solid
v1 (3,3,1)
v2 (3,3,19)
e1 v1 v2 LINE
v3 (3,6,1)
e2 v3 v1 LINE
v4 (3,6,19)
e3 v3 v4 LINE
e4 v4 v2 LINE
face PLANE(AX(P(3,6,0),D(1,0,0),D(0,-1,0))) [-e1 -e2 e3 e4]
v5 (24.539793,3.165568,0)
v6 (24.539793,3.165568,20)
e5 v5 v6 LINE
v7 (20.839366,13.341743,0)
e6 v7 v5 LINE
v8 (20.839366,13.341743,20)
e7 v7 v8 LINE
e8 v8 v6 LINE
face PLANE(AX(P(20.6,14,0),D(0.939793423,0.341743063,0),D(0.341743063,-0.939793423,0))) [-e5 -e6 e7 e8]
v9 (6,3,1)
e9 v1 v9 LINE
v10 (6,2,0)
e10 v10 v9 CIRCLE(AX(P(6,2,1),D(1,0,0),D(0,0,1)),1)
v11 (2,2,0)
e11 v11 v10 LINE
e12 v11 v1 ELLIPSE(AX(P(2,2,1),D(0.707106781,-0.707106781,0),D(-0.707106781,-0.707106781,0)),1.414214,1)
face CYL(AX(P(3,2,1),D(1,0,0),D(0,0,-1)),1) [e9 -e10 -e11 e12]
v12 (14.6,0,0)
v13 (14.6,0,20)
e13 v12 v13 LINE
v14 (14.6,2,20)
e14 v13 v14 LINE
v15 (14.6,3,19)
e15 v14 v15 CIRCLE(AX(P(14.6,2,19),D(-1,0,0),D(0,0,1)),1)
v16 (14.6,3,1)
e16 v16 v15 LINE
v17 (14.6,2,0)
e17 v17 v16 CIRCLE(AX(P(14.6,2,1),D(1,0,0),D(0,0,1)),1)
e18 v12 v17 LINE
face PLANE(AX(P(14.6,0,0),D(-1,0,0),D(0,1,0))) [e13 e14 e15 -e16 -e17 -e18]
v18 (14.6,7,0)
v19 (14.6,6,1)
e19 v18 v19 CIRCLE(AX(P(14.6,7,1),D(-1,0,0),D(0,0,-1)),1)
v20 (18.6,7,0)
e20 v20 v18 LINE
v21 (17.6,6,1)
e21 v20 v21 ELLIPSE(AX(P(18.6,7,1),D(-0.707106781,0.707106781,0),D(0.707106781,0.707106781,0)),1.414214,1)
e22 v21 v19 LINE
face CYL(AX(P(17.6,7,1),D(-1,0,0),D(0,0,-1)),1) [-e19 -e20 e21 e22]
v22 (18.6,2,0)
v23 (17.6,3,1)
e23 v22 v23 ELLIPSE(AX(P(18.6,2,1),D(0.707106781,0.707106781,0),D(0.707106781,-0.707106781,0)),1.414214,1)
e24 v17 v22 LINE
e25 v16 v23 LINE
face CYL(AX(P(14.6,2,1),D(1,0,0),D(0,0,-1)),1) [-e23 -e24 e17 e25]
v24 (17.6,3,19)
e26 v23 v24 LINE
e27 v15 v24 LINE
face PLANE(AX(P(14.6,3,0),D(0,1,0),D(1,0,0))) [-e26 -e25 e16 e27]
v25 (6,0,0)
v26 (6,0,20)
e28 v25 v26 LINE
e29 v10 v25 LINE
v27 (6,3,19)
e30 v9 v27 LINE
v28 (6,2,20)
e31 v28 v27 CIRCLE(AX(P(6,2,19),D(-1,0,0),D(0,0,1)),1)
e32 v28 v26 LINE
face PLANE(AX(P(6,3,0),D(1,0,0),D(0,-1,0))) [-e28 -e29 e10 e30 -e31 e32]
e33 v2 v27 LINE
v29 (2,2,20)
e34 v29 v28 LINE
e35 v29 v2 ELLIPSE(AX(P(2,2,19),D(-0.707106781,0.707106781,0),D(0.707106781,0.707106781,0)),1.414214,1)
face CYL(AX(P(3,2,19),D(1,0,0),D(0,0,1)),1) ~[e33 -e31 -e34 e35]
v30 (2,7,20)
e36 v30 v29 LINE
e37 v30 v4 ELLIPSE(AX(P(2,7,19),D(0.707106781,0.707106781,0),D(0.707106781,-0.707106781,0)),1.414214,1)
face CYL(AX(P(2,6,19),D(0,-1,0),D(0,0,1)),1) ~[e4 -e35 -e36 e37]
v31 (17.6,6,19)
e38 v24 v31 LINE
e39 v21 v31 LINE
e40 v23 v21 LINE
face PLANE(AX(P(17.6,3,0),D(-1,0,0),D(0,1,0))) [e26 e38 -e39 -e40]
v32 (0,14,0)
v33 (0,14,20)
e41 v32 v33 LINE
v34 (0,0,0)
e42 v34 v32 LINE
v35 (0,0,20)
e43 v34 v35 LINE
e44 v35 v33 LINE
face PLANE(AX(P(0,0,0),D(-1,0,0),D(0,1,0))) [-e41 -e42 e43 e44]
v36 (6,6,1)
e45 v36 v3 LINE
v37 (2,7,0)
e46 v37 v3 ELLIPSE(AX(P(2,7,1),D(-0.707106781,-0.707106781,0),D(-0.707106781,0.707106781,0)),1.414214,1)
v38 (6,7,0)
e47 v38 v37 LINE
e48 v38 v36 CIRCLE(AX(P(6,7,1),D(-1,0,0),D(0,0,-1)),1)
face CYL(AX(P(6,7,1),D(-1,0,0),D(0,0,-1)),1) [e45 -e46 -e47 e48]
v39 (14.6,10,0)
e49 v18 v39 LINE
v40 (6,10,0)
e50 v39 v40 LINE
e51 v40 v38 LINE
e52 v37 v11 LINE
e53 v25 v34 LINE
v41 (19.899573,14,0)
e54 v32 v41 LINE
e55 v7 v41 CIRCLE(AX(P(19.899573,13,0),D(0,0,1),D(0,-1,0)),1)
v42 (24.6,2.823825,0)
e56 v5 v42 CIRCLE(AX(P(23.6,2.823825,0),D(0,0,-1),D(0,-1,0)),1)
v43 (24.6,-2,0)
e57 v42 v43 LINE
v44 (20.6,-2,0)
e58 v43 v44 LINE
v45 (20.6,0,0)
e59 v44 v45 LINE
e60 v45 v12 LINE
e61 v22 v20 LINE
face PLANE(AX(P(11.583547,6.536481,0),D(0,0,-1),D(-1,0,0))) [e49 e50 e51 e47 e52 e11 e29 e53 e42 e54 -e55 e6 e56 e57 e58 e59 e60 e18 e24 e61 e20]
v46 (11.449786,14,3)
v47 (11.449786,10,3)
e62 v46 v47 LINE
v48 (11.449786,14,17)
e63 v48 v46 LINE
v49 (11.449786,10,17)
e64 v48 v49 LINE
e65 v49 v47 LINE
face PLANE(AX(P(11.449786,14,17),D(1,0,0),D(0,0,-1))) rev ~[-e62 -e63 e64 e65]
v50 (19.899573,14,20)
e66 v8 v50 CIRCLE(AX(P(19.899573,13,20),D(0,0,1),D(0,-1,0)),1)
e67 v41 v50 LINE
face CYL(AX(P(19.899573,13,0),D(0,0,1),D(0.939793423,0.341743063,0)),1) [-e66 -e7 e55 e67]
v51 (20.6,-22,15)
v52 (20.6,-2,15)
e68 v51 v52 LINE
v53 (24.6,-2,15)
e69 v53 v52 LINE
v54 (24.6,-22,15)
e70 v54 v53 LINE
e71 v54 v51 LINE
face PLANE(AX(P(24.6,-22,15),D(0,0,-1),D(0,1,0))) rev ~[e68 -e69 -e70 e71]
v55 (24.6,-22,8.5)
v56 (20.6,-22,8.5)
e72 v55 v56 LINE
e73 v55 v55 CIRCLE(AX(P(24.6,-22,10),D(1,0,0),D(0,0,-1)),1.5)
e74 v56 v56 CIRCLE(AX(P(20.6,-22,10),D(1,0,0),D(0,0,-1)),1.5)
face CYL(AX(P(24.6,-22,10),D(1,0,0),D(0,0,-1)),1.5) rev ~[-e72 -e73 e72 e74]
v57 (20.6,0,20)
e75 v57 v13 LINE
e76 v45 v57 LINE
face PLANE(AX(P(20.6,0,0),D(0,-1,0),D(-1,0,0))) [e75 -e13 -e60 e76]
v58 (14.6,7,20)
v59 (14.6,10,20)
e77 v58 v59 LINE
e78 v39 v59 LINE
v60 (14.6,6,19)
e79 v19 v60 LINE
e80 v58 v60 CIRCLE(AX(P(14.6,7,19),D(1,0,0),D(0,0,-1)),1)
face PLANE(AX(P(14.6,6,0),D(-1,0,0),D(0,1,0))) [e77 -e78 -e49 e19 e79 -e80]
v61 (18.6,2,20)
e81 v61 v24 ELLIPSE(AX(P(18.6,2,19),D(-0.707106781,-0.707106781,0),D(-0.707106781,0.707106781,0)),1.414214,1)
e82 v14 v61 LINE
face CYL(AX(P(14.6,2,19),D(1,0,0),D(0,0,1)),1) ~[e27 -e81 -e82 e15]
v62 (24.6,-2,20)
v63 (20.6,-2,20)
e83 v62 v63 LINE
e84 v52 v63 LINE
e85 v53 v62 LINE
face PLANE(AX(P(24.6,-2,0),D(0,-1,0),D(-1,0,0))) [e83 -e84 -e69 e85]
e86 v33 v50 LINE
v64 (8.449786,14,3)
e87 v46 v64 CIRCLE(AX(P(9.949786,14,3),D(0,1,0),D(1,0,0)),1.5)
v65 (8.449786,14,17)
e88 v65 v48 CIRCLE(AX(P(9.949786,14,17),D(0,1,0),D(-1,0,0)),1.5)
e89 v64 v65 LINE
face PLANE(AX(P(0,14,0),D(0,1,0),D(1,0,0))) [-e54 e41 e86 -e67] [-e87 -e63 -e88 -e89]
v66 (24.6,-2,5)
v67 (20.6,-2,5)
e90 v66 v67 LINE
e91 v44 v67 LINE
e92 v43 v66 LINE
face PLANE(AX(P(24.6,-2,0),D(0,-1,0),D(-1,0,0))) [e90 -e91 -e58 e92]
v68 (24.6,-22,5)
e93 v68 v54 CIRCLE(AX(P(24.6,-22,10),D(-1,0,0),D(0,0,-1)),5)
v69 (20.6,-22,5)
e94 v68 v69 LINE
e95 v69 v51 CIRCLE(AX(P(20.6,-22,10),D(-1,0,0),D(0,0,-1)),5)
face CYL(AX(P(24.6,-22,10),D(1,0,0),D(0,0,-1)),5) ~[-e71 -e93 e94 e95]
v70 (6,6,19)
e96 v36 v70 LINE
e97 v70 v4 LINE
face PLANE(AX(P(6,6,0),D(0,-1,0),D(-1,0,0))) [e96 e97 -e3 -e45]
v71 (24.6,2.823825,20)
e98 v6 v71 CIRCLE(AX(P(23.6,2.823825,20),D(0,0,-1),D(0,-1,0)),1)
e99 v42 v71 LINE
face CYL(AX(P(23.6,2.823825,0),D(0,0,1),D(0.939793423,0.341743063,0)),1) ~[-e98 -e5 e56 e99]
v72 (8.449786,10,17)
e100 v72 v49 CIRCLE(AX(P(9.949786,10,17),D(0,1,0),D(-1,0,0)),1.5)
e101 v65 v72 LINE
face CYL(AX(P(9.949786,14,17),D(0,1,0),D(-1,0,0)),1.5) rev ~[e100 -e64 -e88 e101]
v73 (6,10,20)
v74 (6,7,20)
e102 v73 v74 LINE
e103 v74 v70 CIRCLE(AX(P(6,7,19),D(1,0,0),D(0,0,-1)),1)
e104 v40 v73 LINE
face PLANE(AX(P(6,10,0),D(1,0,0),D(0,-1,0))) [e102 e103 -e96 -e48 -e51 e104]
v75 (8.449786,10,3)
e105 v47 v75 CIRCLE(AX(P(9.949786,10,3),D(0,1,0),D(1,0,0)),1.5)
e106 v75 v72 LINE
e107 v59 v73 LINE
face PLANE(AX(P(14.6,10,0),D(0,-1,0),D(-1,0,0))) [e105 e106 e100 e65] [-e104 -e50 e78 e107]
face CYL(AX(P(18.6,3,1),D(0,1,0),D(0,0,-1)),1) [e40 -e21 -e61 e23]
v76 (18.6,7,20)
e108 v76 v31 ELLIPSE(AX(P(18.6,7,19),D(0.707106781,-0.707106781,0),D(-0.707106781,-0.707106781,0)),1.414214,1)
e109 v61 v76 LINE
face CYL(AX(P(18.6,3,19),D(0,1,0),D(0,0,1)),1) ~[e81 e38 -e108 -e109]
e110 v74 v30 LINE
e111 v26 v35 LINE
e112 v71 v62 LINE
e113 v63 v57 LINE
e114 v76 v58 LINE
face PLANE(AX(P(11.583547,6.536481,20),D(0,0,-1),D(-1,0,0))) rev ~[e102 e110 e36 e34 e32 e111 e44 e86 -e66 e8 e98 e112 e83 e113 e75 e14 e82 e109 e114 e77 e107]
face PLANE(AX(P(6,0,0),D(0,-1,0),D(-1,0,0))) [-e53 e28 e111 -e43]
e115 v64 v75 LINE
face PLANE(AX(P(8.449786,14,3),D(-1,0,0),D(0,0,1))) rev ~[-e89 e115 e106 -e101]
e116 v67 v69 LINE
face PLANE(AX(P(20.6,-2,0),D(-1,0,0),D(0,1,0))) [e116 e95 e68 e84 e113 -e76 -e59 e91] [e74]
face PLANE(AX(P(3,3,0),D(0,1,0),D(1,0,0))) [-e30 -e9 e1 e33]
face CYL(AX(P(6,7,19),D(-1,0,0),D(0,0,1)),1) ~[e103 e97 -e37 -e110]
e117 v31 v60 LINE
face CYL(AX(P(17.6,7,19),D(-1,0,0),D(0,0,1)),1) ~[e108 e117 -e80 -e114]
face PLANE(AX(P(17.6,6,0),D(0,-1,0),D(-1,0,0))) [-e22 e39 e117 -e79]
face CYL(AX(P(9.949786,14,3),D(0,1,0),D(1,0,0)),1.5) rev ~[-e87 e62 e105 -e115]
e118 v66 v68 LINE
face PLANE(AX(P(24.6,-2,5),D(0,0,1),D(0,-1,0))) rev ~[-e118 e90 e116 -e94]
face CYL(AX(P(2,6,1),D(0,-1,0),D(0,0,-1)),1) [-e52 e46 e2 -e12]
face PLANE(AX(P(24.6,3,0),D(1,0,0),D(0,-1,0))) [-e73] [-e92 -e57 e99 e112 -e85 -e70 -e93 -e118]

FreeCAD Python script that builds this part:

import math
import FreeCAD as App
import Part
import Sketcher


def edges_at(feature, points):
    """Names of the edges that pass closest to the given points."""
    edges = feature.Shape.Edges
    near = lambda p: min(range(len(edges)), key=lambda i: edges[i].distToShape(Part.Vertex(*p))[0])
    return sorted({f"Edge{near(p) + 1}" for p in points})

doc = App.newDocument("Part")
params = doc.addObject("Spreadsheet::Sheet", "Params")
for row, (alias, value) in enumerate([
    ("sketch1_width", "6 mm"),
    ("sketch1_width2", "3 mm"),
    ("sketch1_width3", "4 mm"),
    ("sketch1_height", "14 mm"),
    ("sketch1_height2", "2 mm"),
    ("pad1_length", "20 mm"),
    ("sketch2_diameter", "3 mm"),
    ("sketch2_radius", "5 mm"),
    ("sketch2_width", "20 mm"),
    ("pad2_length", "4 mm"),
    ("fillet_radius", "1 mm"),
    ("sketch3_radius", "1.5 mm"),
    ("sketch3_height", "14 mm"),
], start=1):
    params.set(f"A{row}", alias)
    params.set(f"B{row}", "=" + value)
    params.setAlias(f"B{row}", alias)

body = doc.addObject("PartDesign::Body", "Body")

# Sketch on XY plane
sketch1 = doc.addObject("Sketcher::SketchObject", "Sketch")
body.addObject(sketch1)
sketch1.AttachmentSupport = (doc.XY_Plane, [""])
sketch1.MapMode = "FlatFace"
sketch1.addGeometry(Part.LineSegment(App.Vector(24.6, 3, 0), App.Vector(20.6, 14, 0)), False)
sketch1.addGeometry(Part.LineSegment(App.Vector(20.6, 14, 0), App.Vector(0, 14, 0)), False)
sketch1.addGeometry(Part.LineSegment(App.Vector(0, 14, 0), App.Vector(0, 0, 0)), False)
sketch1.addGeometry(Part.LineSegment(App.Vector(0, 0, 0), App.Vector(6, 0, 0)), False)
sketch1.addGeometry(Part.LineSegment(App.Vector(6, 0, 0), App.Vector(6, 3, 0)), False)
sketch1.addGeometry(Part.LineSegment(App.Vector(6, 3, 0), App.Vector(3, 3, 0)), False)
sketch1.addGeometry(Part.LineSegment(App.Vector(3, 3, 0), App.Vector(3, 6, 0)), False)
sketch1.addGeometry(Part.LineSegment(App.Vector(3, 6, 0), App.Vector(6, 6, 0)), False)
sketch1.addGeometry(Part.LineSegment(App.Vector(6, 6, 0), App.Vector(6, 10, 0)), False)
sketch1.addGeometry(Part.LineSegment(App.Vector(6, 10, 0), App.Vector(14.6, 10, 0)), False)
sketch1.addGeometry(Part.LineSegment(App.Vector(14.6, 10, 0), App.Vector(14.6, 6, 0)), False)
sketch1.addGeometry(Part.LineSegment(App.Vector(14.6, 6, 0), App.Vector(17.6, 6, 0)), False)
sketch1.addGeometry(Part.LineSegment(App.Vector(17.6, 6, 0), App.Vector(17.6, 3, 0)), False)
sketch1.addGeometry(Part.LineSegment(App.Vector(17.6, 3, 0), App.Vector(14.6, 3, 0)), False)
sketch1.addGeometry(Part.LineSegment(App.Vector(14.6, 3, 0), App.Vector(14.6, 0, 0)), False)
sketch1.addGeometry(Part.LineSegment(App.Vector(14.6, 0, 0), App.Vector(20.6, 0, 0)), False)
sketch1.addGeometry(Part.LineSegment(App.Vector(20.6, 0, 0), App.Vector(20.6, -2, 0)), False)
sketch1.addGeometry(Part.LineSegment(App.Vector(20.6, -2, 0), App.Vector(24.6, -2, 0)), False)
sketch1.addGeometry(Part.LineSegment(App.Vector(24.6, -2, 0), App.Vector(24.6, 3, 0)), False)
sketch1.addConstraint(Sketcher.Constraint("Coincident", 0, 2, 1, 1))
sketch1.addConstraint(Sketcher.Constraint("Coincident", 1, 2, 2, 1))
sketch1.addConstraint(Sketcher.Constraint("Coincident", 2, 2, 3, 1))
sketch1.addConstraint(Sketcher.Constraint("Coincident", 3, 2, 4, 1))
sketch1.addConstraint(Sketcher.Constraint("Coincident", 4, 2, 5, 1))
sketch1.addConstraint(Sketcher.Constraint("Coincident", 5, 2, 6, 1))
sketch1.addConstraint(Sketcher.Constraint("Coincident", 6, 2, 7, 1))
sketch1.addConstraint(Sketcher.Constraint("Coincident", 7, 2, 8, 1))
sketch1.addConstraint(Sketcher.Constraint("Coincident", 8, 2, 9, 1))
sketch1.addConstraint(Sketcher.Constraint("Coincident", 9, 2, 10, 1))
sketch1.addConstraint(Sketcher.Constraint("Coincident", 10, 2, 11, 1))
sketch1.addConstraint(Sketcher.Constraint("Coincident", 11, 2, 12, 1))
sketch1.addConstraint(Sketcher.Constraint("Coincident", 12, 2, 13, 1))
sketch1.addConstraint(Sketcher.Constraint("Coincident", 13, 2, 14, 1))
sketch1.addConstraint(Sketcher.Constraint("Coincident", 14, 2, 15, 1))
sketch1.addConstraint(Sketcher.Constraint("Coincident", 15, 2, 16, 1))
sketch1.addConstraint(Sketcher.Constraint("Coincident", 16, 2, 17, 1))
sketch1.addConstraint(Sketcher.Constraint("Coincident", 17, 2, 18, 1))
sketch1.addConstraint(Sketcher.Constraint("Coincident", 18, 2, 0, 1))
sketch1.addConstraint(Sketcher.Constraint("Horizontal", 1))
sketch1.addConstraint(Sketcher.Constraint("Vertical", 2))
sketch1.addConstraint(Sketcher.Constraint("Horizontal", 3))
sketch1.addConstraint(Sketcher.Constraint("Vertical", 4))
sketch1.addConstraint(Sketcher.Constraint("Horizontal", 5))
sketch1.addConstraint(Sketcher.Constraint("Vertical", 6))
sketch1.addConstraint(Sketcher.Constraint("Horizontal", 7))
sketch1.addConstraint(Sketcher.Constraint("Vertical", 8))
sketch1.addConstraint(Sketcher.Constraint("Horizontal", 9))
sketch1.addConstraint(Sketcher.Constraint("Vertical", 10))
sketch1.addConstraint(Sketcher.Constraint("Horizontal", 11))
sketch1.addConstraint(Sketcher.Constraint("Vertical", 12))
sketch1.addConstraint(Sketcher.Constraint("Horizontal", 13))
sketch1.addConstraint(Sketcher.Constraint("Vertical", 14))
sketch1.addConstraint(Sketcher.Constraint("Horizontal", 15))
sketch1.addConstraint(Sketcher.Constraint("Vertical", 16))
sketch1.addConstraint(Sketcher.Constraint("Horizontal", 17))
sketch1.addConstraint(Sketcher.Constraint("Vertical", 18))
sketch1.addConstraint(Sketcher.Constraint("Coincident", 2, 2, -1, 1))
sketch1.addConstraint(Sketcher.Constraint("PointOnObject", 14, 2, -1))
sketch1.addConstraint(Sketcher.Constraint("Horizontal", 7, 2, 10, 2))
sketch1.addConstraint(Sketcher.Constraint("Horizontal", 5, 2, 12, 2))
sketch1.addConstraint(Sketcher.Constraint("Horizontal", 13, 2, 18, 2))
sketch1.addConstraint(Sketcher.Constraint("Vertical", 4, 2, 7, 2))
sketch1.addConstraint(Sketcher.Constraint("Vertical", 10, 2, 13, 2))
sketch1.addConstraint(Sketcher.Constraint("Vertical", 0, 2, 15, 2))
sketch1.addConstraint(Sketcher.Constraint("Equal", 7, 11))
sketch1.addConstraint(Sketcher.Constraint("Equal", 3, 15))
sketch1.addConstraint(Sketcher.Constraint("Equal", 13, 4))
sketch1.addConstraint(Sketcher.Constraint("Equal", 4, 6))
sketch1.addConstraint(Sketcher.Constraint("Equal", 17, 8))
sketch1.addConstraint(Sketcher.Constraint("DistanceX", 3, 1, 3, 2, 6.0))
sketch1.addConstraint(Sketcher.Constraint("DistanceX", 5, 2, 5, 1, 3.0))
sketch1.addConstraint(Sketcher.Constraint("DistanceX", 17, 1, 17, 2, 4.0))
sketch1.addConstraint(Sketcher.Constraint("DistanceY", 2, 2, 2, 1, 14.0))
sketch1.addConstraint(Sketcher.Constraint("DistanceY", 16, 2, 16, 1, 2.0))
sketch1.addConstraint(Sketcher.Constraint("DistanceX", 1, 2, 1, 1, 20.6))
sketch1.setExpression("Constraints[50]", "Params.sketch1_width")
sketch1.setExpression("Constraints[51]", "Params.sketch1_width2")
sketch1.setExpression("Constraints[52]", "Params.sketch1_width3")
sketch1.setExpression("Constraints[53]", "Params.sketch1_height")
sketch1.setExpression("Constraints[54]", "Params.sketch1_height2")
pad1 = doc.addObject("PartDesign::Pad", "Pad")
body.addObject(pad1)
pad1.Profile = sketch1
pad1.setExpression("Length", "Params.pad1_length")

# Sketch on YZ plane
sketch2 = doc.addObject("Sketcher::SketchObject", "Sketch001")
body.addObject(sketch2)
sketch2.AttachmentSupport = (doc.YZ_Plane, [""])
sketch2.MapMode = "FlatFace"
sketch2.AttachmentOffset = App.Placement(App.Vector(0, 0, 24.6), App.Rotation())
sketch2.addGeometry(Part.LineSegment(App.Vector(-2, 5, 0), App.Vector(-2, 15, 0)), False)
sketch2.addGeometry(Part.LineSegment(App.Vector(-2, 15, 0), App.Vector(-22, 15, 0)), False)
sketch2.addGeometry(Part.ArcOfCircle(Part.Circle(App.Vector(-22, 10, 0), App.Vector(0, 0, 1), 5), math.radians(90), math.radians(270)), False)
sketch2.addGeometry(Part.LineSegment(App.Vector(-22, 5, 0), App.Vector(-2, 5, 0)), False)
sketch2.addGeometry(Part.Circle(App.Vector(-22, 10, 0), App.Vector(0, 0, 1), 1.5), False)
sketch2.addConstraint(Sketcher.Constraint("Coincident", 0, 2, 1, 1))
sketch2.addConstraint(Sketcher.Constraint("Tangent", 1, 2, 2, 1))
sketch2.addConstraint(Sketcher.Constraint("Tangent", 2, 2, 3, 1))
sketch2.addConstraint(Sketcher.Constraint("Coincident", 3, 2, 0, 1))
sketch2.addConstraint(Sketcher.Constraint("Vertical", 0))
sketch2.addConstraint(Sketcher.Constraint("Horizontal", 1))
sketch2.addConstraint(Sketcher.Constraint("Horizontal", 3))
sketch2.addConstraint(Sketcher.Constraint("Coincident", 4, 3, 2, 3))
sketch2.addConstraint(Sketcher.Constraint("Diameter", 4, 3.0))
sketch2.addConstraint(Sketcher.Constraint("Radius", 2, 5.0))
sketch2.addConstraint(Sketcher.Constraint("DistanceX", 1, 2, 1, 1, 20.0))
sketch2.addConstraint(Sketcher.Constraint("DistanceX", 2, 3, -1, 1, 22.0))
sketch2.addConstraint(Sketcher.Constraint("DistanceY", -1, 1, 2, 3, 10.0))
sketch2.setExpression("Constraints[8]", "Params.sketch2_diameter")
sketch2.setExpression("Constraints[9]", "Params.sketch2_radius")
sketch2.setExpression("Constraints[10]", "Params.sketch2_width")
pad2 = doc.addObject("PartDesign::Pad", "Pad001")
body.addObject(pad2)
pad2.Profile = sketch2
pad2.setExpression("Length", "Params.pad2_length")
pad2.Reversed = True
doc.recompute()

fillet = doc.addObject("PartDesign::Fillet", "Fillet")
body.addObject(fillet)
fillet.Base = (pad2, edges_at(pad2, [
    (16.1, 3, 0),
    (17.6, 4.5, 0),
    (16.1, 6, 0),
    (4.5, 6, 0),
    (3, 4.5, 0),
    (4.5, 3, 0),
    (4.5, 3, 20),
    (3, 4.5, 20),
    (20.6, 14, 10),
    (24.6, 3, 10),
    (4.5, 6, 20),
    (16.1, 6, 20),
    (17.6, 4.5, 20),
    (16.1, 3, 20),
]))
fillet.setExpression("Radius", "Params.fillet_radius")

# Sketch on XZ plane
sketch3 = doc.addObject("Sketcher::SketchObject", "Sketch002")
body.addObject(sketch3)
sketch3.AttachmentSupport = (doc.XZ_Plane, [""])
sketch3.MapMode = "FlatFace"
sketch3.AttachmentOffset = App.Placement(App.Vector(0, 0, -14), App.Rotation())
sketch3.addGeometry(Part.LineSegment(App.Vector(8.4, 3, 0), App.Vector(8.4, 17, 0)), False)
sketch3.addGeometry(Part.ArcOfCircle(Part.Circle(App.Vector(9.9, 17, 0), App.Vector(0, 0, 1), 1.5), math.radians(0), math.radians(180)), False)
sketch3.addGeometry(Part.LineSegment(App.Vector(11.4, 17, 0), App.Vector(11.4, 3, 0)), False)
sketch3.addGeometry(Part.ArcOfCircle(Part.Circle(App.Vector(9.9, 3, 0), App.Vector(0, 0, 1), 1.5), math.radians(180), math.radians(360)), False)
sketch3.addConstraint(Sketcher.Constraint("Tangent", 0, 2, 1, 2))
sketch3.addConstraint(Sketcher.Constraint("Tangent", 1, 1, 2, 1))
sketch3.addConstraint(Sketcher.Constraint("Tangent", 2, 2, 3, 2))
sketch3.addConstraint(Sketcher.Constraint("Tangent", 3, 1, 0, 1))
sketch3.addConstraint(Sketcher.Constraint("Vertical", 0))
sketch3.addConstraint(Sketcher.Constraint("Vertical", 2))
sketch3.addConstraint(Sketcher.Constraint("Radius", 1, 1.5))
sketch3.addConstraint(Sketcher.Constraint("DistanceY", 0, 1, 0, 2, 14.0))
sketch3.addConstraint(Sketcher.Constraint("DistanceY", -1, 1, 1, 3, 17.0))
sketch3.addConstraint(Sketcher.Constraint("DistanceX", -1, 1, 1, 3, 9.949786))
sketch3.setExpression("Constraints[6]", "Params.sketch3_radius")
sketch3.setExpression("Constraints[7]", "Params.sketch3_height")
pocket1 = doc.addObject("PartDesign::Pocket", "Pocket")
body.addObject(pocket1)
pocket1.Profile = sketch3
pocket1.Type = "UpToFirst"
pocket1.Reversed = True

doc.recompute()
